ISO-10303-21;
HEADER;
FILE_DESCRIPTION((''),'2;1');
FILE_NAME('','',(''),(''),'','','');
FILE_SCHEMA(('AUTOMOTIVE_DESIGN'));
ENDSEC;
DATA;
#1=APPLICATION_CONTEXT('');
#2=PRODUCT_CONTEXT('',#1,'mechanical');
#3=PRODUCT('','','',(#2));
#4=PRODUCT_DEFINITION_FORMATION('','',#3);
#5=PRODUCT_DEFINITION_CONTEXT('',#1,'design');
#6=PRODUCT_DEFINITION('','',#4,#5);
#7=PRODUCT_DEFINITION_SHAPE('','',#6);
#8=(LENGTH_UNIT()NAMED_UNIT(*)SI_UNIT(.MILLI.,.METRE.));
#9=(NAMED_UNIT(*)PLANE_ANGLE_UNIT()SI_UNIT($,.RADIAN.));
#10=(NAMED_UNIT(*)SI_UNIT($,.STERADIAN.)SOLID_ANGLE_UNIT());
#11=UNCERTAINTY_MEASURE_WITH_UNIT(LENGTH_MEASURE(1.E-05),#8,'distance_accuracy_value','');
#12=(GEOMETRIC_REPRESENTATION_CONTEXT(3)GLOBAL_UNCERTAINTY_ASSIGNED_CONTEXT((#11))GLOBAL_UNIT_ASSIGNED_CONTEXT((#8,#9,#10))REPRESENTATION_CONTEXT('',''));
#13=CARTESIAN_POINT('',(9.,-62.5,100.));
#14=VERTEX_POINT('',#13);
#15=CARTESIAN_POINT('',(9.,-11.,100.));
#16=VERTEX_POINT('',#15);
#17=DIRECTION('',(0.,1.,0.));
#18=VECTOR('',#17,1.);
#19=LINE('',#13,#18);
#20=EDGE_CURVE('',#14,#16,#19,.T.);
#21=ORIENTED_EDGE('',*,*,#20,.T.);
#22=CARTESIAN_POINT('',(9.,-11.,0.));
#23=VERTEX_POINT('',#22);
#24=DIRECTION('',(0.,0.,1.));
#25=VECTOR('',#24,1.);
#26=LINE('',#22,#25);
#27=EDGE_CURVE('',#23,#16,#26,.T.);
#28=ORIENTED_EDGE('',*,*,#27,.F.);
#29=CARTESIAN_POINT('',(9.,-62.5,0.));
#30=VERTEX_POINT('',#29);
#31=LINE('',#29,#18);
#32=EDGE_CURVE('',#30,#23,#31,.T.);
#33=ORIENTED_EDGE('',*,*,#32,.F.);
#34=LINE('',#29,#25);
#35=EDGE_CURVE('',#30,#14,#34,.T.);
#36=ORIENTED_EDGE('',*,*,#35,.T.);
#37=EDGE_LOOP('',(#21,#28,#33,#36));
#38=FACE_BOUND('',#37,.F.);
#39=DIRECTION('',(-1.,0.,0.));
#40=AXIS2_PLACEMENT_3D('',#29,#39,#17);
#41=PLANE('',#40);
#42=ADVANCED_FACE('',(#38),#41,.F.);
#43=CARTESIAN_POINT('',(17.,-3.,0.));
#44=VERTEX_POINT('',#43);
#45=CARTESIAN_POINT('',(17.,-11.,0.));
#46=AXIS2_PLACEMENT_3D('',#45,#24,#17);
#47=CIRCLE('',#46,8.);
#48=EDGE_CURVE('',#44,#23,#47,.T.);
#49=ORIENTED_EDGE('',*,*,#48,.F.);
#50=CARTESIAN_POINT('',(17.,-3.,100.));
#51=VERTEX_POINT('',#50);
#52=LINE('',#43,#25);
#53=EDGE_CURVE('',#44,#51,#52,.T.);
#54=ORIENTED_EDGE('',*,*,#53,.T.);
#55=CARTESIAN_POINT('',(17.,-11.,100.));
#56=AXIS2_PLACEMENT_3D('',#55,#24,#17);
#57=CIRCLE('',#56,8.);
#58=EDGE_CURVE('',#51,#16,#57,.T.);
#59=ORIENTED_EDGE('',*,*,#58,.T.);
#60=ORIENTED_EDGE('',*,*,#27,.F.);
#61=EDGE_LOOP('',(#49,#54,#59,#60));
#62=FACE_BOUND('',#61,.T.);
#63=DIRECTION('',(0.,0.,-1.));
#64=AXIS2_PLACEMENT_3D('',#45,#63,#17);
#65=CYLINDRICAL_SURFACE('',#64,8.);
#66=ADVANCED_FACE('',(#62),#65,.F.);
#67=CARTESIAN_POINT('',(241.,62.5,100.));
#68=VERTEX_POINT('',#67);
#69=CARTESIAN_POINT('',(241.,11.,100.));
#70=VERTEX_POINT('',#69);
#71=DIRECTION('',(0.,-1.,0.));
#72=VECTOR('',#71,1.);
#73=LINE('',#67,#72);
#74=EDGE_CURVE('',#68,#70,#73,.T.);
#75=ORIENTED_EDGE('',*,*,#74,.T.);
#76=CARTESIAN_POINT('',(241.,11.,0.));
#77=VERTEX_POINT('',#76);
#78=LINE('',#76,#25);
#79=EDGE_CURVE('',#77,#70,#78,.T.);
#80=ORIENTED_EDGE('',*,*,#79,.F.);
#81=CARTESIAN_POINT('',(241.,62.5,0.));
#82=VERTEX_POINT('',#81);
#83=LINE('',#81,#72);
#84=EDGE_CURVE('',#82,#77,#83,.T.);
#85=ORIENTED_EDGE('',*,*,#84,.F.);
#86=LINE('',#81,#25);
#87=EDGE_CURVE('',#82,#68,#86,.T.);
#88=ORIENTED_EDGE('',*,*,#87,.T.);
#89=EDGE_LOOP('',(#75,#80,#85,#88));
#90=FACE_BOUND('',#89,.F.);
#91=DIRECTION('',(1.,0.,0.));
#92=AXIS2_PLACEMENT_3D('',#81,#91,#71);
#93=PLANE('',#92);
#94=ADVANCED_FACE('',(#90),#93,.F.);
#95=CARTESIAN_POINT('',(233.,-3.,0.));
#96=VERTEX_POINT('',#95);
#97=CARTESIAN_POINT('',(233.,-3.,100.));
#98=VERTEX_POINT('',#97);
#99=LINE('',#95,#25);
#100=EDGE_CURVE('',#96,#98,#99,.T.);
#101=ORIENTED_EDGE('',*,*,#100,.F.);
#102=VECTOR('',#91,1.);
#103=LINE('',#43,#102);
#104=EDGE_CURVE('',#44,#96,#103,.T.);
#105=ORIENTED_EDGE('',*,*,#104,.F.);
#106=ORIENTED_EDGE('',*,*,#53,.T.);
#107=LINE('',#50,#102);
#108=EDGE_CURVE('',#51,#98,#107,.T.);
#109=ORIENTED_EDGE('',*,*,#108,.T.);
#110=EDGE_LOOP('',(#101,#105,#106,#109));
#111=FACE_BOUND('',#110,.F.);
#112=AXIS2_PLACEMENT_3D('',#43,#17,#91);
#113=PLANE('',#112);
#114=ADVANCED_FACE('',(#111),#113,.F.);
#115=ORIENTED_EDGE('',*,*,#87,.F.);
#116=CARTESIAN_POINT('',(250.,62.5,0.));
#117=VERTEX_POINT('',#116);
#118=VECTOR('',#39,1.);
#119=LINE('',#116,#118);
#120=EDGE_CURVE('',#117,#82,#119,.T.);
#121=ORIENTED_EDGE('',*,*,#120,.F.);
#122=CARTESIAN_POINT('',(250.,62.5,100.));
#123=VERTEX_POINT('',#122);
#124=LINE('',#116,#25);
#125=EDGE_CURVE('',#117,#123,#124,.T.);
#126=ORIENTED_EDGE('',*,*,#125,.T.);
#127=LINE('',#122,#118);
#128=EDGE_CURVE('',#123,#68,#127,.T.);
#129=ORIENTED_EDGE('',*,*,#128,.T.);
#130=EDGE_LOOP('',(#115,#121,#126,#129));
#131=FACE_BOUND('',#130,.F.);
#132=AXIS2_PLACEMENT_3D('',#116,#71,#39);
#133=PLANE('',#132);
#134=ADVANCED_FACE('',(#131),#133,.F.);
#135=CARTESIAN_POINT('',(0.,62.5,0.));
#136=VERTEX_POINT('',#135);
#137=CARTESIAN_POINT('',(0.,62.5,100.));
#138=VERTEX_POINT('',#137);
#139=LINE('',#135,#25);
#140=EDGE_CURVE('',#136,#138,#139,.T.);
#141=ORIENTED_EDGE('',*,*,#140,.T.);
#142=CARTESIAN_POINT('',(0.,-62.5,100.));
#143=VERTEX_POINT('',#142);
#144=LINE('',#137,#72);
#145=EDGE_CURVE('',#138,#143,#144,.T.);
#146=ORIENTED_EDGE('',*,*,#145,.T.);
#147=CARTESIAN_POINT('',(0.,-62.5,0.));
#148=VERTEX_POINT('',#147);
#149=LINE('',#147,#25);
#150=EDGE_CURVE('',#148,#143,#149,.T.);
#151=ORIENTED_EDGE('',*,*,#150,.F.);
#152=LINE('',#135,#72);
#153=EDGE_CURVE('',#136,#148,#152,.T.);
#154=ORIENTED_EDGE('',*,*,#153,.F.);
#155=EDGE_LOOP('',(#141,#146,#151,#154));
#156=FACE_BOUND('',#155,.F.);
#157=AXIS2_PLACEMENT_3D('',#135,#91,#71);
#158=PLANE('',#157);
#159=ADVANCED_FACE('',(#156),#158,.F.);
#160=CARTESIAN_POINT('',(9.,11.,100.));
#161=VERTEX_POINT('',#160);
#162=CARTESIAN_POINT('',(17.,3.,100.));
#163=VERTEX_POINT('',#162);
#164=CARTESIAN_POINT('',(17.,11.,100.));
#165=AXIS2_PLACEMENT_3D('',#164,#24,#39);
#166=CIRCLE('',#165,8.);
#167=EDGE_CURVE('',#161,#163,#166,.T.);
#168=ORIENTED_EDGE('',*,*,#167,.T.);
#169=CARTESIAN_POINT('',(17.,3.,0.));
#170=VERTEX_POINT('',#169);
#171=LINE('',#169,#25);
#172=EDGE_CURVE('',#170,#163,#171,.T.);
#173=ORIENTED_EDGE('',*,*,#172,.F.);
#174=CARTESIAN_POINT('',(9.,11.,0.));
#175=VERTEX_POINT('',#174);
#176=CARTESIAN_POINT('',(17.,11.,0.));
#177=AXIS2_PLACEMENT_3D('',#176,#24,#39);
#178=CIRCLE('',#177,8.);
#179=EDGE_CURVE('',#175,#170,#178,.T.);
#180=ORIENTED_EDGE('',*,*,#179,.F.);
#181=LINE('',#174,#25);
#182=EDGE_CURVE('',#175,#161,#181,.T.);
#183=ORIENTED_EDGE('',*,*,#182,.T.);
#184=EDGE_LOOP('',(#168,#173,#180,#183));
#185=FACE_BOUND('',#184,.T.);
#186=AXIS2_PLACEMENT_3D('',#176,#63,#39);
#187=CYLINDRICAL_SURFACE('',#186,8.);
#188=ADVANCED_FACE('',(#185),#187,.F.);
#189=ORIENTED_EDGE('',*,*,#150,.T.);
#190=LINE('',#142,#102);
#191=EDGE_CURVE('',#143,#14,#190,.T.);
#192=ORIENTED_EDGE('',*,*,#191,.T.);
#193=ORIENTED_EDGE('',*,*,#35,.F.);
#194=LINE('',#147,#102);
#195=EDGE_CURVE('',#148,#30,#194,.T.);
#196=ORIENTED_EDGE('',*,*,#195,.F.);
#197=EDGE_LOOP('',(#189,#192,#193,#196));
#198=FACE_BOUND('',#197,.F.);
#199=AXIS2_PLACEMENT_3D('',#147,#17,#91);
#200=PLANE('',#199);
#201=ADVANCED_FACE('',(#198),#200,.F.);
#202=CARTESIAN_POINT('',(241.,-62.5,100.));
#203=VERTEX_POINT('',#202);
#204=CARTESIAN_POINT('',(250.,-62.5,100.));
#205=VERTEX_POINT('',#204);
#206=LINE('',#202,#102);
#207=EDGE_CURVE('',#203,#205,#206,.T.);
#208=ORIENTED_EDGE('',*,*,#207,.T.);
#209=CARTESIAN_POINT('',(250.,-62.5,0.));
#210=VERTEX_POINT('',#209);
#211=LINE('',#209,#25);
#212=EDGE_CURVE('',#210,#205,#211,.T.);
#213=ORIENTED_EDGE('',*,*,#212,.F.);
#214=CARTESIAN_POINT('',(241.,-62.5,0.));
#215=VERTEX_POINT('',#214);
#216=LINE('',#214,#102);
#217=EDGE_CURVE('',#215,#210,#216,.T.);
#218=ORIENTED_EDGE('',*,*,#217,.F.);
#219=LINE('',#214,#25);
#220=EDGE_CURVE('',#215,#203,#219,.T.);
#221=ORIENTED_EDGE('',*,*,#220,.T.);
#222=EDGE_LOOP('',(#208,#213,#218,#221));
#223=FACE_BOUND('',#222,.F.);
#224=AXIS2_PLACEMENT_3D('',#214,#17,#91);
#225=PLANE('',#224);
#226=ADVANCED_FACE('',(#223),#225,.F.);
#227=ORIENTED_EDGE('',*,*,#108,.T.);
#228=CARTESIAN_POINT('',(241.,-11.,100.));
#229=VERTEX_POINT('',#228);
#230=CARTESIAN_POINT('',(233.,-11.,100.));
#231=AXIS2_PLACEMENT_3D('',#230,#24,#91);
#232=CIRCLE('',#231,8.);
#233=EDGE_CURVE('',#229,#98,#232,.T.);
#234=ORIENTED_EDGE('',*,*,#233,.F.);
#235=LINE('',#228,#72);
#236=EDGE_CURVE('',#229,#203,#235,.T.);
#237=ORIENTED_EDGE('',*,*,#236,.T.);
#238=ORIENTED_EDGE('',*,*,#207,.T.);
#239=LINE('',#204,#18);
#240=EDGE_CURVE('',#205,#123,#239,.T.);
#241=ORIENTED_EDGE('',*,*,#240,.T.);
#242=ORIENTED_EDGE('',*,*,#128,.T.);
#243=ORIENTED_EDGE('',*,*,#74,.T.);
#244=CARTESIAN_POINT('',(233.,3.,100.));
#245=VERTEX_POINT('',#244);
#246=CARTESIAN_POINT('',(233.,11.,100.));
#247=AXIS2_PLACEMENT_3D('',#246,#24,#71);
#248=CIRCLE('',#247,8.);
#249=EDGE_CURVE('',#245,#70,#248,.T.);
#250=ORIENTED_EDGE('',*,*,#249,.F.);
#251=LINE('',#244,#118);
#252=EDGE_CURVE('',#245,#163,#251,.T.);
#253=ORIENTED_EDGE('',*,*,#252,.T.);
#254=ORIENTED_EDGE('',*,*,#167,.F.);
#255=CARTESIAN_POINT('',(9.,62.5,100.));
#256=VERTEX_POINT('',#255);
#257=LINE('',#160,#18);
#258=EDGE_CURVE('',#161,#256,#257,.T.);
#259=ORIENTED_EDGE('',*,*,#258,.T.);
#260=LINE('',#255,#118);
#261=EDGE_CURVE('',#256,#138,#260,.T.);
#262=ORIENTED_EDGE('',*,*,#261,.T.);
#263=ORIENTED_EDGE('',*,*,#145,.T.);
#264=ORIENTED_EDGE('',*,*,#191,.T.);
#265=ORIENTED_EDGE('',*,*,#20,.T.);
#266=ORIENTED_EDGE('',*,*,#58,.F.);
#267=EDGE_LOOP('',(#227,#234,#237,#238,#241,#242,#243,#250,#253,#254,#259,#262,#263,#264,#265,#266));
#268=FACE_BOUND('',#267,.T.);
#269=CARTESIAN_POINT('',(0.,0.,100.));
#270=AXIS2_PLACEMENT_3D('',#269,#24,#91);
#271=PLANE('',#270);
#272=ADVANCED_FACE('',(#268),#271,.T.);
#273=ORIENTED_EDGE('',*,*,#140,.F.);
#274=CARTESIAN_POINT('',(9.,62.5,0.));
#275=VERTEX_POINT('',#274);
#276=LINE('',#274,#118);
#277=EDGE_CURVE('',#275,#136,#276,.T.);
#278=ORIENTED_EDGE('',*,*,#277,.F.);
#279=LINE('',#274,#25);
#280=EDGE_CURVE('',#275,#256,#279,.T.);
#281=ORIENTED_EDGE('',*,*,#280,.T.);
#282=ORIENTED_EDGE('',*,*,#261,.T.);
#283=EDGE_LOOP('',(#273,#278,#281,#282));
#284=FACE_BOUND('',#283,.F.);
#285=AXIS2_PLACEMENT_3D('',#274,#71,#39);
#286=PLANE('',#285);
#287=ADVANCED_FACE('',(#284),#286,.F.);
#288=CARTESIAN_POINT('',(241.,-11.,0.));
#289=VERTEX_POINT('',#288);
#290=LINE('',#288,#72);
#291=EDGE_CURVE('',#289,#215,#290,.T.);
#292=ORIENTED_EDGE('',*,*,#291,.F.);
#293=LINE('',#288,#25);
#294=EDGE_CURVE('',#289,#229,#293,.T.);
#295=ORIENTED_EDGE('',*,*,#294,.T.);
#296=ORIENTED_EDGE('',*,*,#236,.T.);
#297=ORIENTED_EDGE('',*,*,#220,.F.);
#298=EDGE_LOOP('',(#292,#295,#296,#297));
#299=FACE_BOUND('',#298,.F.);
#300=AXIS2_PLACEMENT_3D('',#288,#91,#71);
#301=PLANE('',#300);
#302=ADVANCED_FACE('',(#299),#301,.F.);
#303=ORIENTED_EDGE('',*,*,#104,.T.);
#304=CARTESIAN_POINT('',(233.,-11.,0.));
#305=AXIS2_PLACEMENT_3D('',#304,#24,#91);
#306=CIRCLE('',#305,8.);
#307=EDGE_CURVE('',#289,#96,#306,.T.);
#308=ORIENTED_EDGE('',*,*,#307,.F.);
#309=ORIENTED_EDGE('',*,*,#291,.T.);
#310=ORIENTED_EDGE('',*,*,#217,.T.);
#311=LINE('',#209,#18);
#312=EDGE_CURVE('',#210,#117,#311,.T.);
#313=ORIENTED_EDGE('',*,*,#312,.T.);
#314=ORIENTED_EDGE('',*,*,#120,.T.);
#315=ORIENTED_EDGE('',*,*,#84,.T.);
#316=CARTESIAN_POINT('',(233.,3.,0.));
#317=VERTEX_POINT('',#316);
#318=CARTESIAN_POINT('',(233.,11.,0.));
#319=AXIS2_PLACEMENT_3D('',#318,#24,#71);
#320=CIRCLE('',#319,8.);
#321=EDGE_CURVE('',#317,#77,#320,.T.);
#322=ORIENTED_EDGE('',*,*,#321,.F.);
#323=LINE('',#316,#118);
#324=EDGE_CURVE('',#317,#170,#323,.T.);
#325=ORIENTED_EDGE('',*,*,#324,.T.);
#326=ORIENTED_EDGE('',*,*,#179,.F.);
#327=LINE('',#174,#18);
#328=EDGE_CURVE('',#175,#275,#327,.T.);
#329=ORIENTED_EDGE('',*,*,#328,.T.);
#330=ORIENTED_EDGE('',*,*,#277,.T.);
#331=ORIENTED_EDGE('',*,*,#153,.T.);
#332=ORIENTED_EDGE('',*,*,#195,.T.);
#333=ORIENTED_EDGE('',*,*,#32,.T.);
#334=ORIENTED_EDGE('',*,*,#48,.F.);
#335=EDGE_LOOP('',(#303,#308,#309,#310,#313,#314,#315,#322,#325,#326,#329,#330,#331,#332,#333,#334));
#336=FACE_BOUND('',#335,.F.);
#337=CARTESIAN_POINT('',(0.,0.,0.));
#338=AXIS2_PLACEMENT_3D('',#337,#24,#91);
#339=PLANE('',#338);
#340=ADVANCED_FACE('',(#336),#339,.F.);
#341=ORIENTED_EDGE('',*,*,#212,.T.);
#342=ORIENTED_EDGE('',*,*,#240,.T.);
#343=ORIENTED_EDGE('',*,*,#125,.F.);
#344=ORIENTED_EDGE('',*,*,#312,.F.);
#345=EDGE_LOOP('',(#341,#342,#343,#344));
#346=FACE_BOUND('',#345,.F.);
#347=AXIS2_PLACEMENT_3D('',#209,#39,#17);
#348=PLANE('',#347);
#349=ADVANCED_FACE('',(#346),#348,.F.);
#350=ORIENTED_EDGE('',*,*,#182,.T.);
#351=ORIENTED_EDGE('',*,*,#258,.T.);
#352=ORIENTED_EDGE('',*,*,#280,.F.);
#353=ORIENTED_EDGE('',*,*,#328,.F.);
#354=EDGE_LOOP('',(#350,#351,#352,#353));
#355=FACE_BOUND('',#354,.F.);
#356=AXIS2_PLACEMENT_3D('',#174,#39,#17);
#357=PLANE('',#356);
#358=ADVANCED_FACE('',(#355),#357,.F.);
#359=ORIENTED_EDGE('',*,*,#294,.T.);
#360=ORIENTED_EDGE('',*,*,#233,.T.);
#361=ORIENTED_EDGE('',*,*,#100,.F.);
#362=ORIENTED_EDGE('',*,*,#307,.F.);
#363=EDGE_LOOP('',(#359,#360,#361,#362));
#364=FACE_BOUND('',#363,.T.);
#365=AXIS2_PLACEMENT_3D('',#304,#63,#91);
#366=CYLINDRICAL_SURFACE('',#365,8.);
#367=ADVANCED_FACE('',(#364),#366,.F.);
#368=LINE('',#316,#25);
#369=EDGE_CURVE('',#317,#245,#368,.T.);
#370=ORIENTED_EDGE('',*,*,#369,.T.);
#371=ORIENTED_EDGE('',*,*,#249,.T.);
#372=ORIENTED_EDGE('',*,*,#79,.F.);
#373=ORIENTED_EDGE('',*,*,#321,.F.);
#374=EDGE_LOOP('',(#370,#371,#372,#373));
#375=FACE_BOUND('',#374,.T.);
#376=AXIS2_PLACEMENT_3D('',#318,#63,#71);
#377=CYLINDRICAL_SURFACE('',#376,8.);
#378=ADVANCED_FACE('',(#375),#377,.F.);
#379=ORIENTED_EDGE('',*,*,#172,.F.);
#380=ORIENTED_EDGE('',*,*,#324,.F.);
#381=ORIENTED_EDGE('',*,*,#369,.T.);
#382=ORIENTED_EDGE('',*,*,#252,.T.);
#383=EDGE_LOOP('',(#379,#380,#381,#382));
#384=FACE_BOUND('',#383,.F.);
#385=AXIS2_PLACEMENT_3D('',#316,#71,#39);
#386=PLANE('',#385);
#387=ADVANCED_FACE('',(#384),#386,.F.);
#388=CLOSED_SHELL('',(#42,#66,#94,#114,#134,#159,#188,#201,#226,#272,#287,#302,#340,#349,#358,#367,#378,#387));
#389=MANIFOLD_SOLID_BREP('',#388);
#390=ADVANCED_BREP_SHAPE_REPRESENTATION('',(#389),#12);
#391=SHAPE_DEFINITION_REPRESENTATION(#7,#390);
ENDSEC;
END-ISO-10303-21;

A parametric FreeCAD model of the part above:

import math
import FreeCAD as App
import Part
import Sketcher
Q = App.Units.Quantity

doc = App.newDocument("Part")
body = doc.addObject("PartDesign::Body", "Body")

# Sketch on XY plane
sketch1 = body.newObject("Sketcher::SketchObject", "Sketch")
sketch1.AttachmentSupport = (doc.getObject("XY_Plane"), [""])
sketch1.MapMode = "FlatFace"
sketch1.addGeometry([
    Part.LineSegment(App.Vector(9, 62, 0), App.Vector(0, 62, 0)),  # 0
    Part.LineSegment(App.Vector(0, 62, 0), App.Vector(0, -62, 0)),  # 1
    Part.LineSegment(App.Vector(0, -62, 0), App.Vector(9, -62, 0)),  # 2
    Part.LineSegment(App.Vector(9, -62, 0), App.Vector(9, -11, 0)),  # 3
    Part.ArcOfCircle(Part.Circle(App.Vector(17, -11, 0), App.Vector(0, 0, 1), 8), math.radians(90), math.radians(180)),  # 4
    Part.LineSegment(App.Vector(17, -3, 0), App.Vector(233, -3, 0)),  # 5
    Part.ArcOfCircle(Part.Circle(App.Vector(233, -11, 0), App.Vector(0, 0, 1), 8), math.radians(0), math.radians(90)),  # 6
    Part.LineSegment(App.Vector(241, -11, 0), App.Vector(241, -62, 0)),  # 7
    Part.LineSegment(App.Vector(241, -62, 0), App.Vector(250, -62, 0)),  # 8
    Part.LineSegment(App.Vector(250, -62, 0), App.Vector(250, 62, 0)),  # 9
    Part.LineSegment(App.Vector(250, 62, 0), App.Vector(241, 62, 0)),  # 10
    Part.LineSegment(App.Vector(241, 62, 0), App.Vector(241, 11, 0)),  # 11
    Part.ArcOfCircle(Part.Circle(App.Vector(233, 11, 0), App.Vector(0, 0, 1), 8), math.radians(-90), math.radians(0)),  # 12
    Part.LineSegment(App.Vector(233, 3, 0), App.Vector(17, 3, 0)),  # 13
    Part.ArcOfCircle(Part.Circle(App.Vector(17, 11, 0), App.Vector(0, 0, 1), 8), math.radians(180), math.radians(270)),  # 14
    Part.LineSegment(App.Vector(9, 11, 0), App.Vector(9, 62, 0)),  # 15
], False)
sketch1.addConstraint([
    Sketcher.Constraint("Coincident", 0, 2, 1, 1),
    Sketcher.Constraint("Coincident", 1, 2, 2, 1),
    Sketcher.Constraint("Coincident", 2, 2, 3, 1),
    Sketcher.Constraint("Tangent", 3, 2, 4, 2),
    Sketcher.Constraint("Tangent", 4, 1, 5, 1),
    Sketcher.Constraint("Tangent", 5, 2, 6, 2),
    Sketcher.Constraint("Tangent", 6, 1, 7, 1),
    Sketcher.Constraint("Coincident", 7, 2, 8, 1),
    Sketcher.Constraint("Coincident", 8, 2, 9, 1),
    Sketcher.Constraint("Coincident", 9, 2, 10, 1),
    Sketcher.Constraint("Coincident", 10, 2, 11, 1),
    Sketcher.Constraint("Tangent", 11, 2, 12, 2),
    Sketcher.Constraint("Tangent", 12, 1, 13, 1),
    Sketcher.Constraint("Tangent", 13, 2, 14, 2),
    Sketcher.Constraint("Tangent", 14, 1, 15, 1),
    Sketcher.Constraint("Coincident", 15, 2, 0, 1),
    Sketcher.Constraint("Horizontal", 0),
    Sketcher.Constraint("Vertical", 1),
    Sketcher.Constraint("Horizontal", 2),
    Sketcher.Constraint("Vertical", 3),
    Sketcher.Constraint("Horizontal", 5),
    Sketcher.Constraint("Vertical", 7),
    Sketcher.Constraint("Horizontal", 8),
    Sketcher.Constraint("Vertical", 9),
    Sketcher.Constraint("Horizontal", 10),
    Sketcher.Constraint("Vertical", 11),
    Sketcher.Constraint("Horizontal", 13),
    Sketcher.Constraint("Vertical", 15),
    Sketcher.Constraint("Equal", 4, 6),
    Sketcher.Constraint("Equal", 6, 12),
    Sketcher.Constraint("Equal", 12, 14),
    Sketcher.Constraint("Symmetric", 0, 2, 1, 2, -1, 1),
    Sketcher.Constraint("Symmetric", 6, 3, 12, 3, -1),
    Sketcher.Constraint("Horizontal", 2, 2, 7, 2),
    Sketcher.Constraint("Horizontal", 0, 2, 9, 2),
    Sketcher.Constraint("Vertical", 4, 3, 14, 3),
    Sketcher.Constraint("Equal", 2, 8),
    Sketcher.Constraint("Radius", 4, Q("8 mm")),
    Sketcher.Constraint("DistanceX", 0, 2, 0, 1, Q("9 mm")),
    Sketcher.Constraint("DistanceX", 5, 1, 5, 2, Q("216 mm")),
    Sketcher.Constraint("DistanceY", 1, 2, 1, 1, Q("125 mm")),
    Sketcher.Constraint("DistanceY", 3, 1, 3, 2, Q("51.5 mm")),
])
pad1 = body.newObject("PartDesign::Pad", "Pad")
pad1.Profile = sketch1
pad1.Length = 100

doc.recompute()
